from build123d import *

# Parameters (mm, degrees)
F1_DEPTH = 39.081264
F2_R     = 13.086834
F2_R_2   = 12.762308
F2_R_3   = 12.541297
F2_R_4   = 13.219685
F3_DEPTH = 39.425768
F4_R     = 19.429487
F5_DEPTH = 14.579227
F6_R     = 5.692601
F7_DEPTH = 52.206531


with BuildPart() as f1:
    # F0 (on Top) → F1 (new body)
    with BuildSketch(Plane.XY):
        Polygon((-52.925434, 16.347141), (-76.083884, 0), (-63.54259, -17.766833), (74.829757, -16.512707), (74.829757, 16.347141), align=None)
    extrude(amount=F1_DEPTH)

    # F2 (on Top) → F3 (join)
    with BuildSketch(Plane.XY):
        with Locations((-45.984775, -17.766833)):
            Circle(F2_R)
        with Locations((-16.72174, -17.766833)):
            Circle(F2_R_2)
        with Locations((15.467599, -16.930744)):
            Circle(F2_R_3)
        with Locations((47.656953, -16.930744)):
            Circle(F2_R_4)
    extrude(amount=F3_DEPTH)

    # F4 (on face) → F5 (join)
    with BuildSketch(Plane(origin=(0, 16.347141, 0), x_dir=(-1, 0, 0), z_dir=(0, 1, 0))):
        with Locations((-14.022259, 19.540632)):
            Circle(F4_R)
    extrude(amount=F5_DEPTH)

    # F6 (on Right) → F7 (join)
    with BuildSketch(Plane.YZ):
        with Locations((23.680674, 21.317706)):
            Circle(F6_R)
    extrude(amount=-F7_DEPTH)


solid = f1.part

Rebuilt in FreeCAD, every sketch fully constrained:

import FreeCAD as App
import Part
import Sketcher
from FreeCAD import Vector
Q = App.Units.Quantity

doc = App.newDocument("Part")
body = doc.addObject("PartDesign::Body", "Body")

# Sketch on XY plane
sketch1 = doc.addObject("Sketcher::SketchObject", "Sketch")
body.addObject(sketch1)
sketch1.AttachmentSupport = (doc.XY_Plane, [""])
sketch1.MapMode = "FlatFace"
sketch1.addGeometry([
    Part.LineSegment(Vector(-52.925434, 16.347141, 0), Vector(-76.083884, 0, 0)),  # 0
    Part.LineSegment(Vector(-76.083884, 0, 0), Vector(-63.54259, -17.766833, 0)),  # 1
    Part.LineSegment(Vector(-63.54259, -17.766833, 0), Vector(74.829757, -16.512707, 0)),  # 2
    Part.LineSegment(Vector(74.829757, -16.512707, 0), Vector(74.829757, 16.347141, 0)),  # 3
    Part.LineSegment(Vector(74.829757, 16.347141, 0), Vector(-52.925434, 16.347141, 0)),  # 4
], False)
sketch1.addConstraint([
    Sketcher.Constraint("Coincident", 0, 2, 1, 1),
    Sketcher.Constraint("Coincident", 1, 2, 2, 1),
    Sketcher.Constraint("Coincident", 2, 2, 3, 1),
    Sketcher.Constraint("Coincident", 3, 2, 4, 1),
    Sketcher.Constraint("Coincident", 4, 2, 0, 1),
    Sketcher.Constraint("Vertical", 3),
    Sketcher.Constraint("Horizontal", 4),
    Sketcher.Constraint("PointOnObject", 0, 2, -1),
    Sketcher.Constraint("Perpendicular", 0, 1),
    Sketcher.Constraint("DistanceX", 4, 2, 4, 1, Q("127.755191 mm")),
    Sketcher.Constraint("Distance", 0, Q("28.346831 mm")),
    Sketcher.Constraint("Distance", 2, Q("138.37803 mm")),
    Sketcher.Constraint("DistanceY", 3, 1, 3, 2, Q("32.859848 mm")),
    Sketcher.Constraint("DistanceX", 1, 2, -1, 1, Q("63.54259 mm")),
    Sketcher.Constraint("DistanceY", -1, 1, 3, 2, Q("16.347141 mm")),
])
pad1 = doc.addObject("PartDesign::Pad", "Pad")
body.addObject(pad1)
pad1.Profile = sketch1
pad1.Length = 39.081264

# Sketch on XY plane
sketch2 = doc.addObject("Sketcher::SketchObject", "Sketch001")
body.addObject(sketch2)
sketch2.AttachmentSupport = (doc.XY_Plane, [""])
sketch2.MapMode = "FlatFace"
sketch2.addGeometry([
    Part.Circle(Vector(-45.984775, -17.766833, 0), Vector(0, 0, 1), 13.086834),
    Part.Circle(Vector(-16.72174, -17.766833, 0), Vector(0, 0, 1), 12.762308),
    Part.Circle(Vector(15.467599, -16.930744, 0), Vector(0, 0, 1), 12.541297),
    Part.Circle(Vector(47.656953, -16.930744, 0), Vector(0, 0, 1), 13.219685),
], False)
sketch2.addConstraint([
    Sketcher.Constraint("Horizontal", 0, 3, 1, 3),
    Sketcher.Constraint("Horizontal", 2, 3, 3, 3),
    Sketcher.Constraint("Diameter", 3, Q("26.43937 mm")),
    Sketcher.Constraint("Diameter", 0, Q("26.173668 mm")),
    Sketcher.Constraint("Diameter", 1, Q("25.524616 mm")),
    Sketcher.Constraint("Diameter", 2, Q("25.082594 mm")),
    Sketcher.Constraint("DistanceX", -1, 1, 2, 3, Q("15.467599 mm")),
    Sketcher.Constraint("DistanceX", 1, 3, -1, 1, Q("16.72174 mm")),
    Sketcher.Constraint("DistanceY", 1, 3, 2, 3, Q("0.836089 mm")),
    Sketcher.Constraint("DistanceX", 0, 3, 3, 3, Q("93.641728 mm")),
    Sketcher.Constraint("DistanceX", 0, 3, -1, 1, Q("45.984775 mm")),
    Sketcher.Constraint("DistanceY", 0, 3, -1, 1, Q("17.766833 mm")),
])
pad2 = doc.addObject("PartDesign::Pad", "Pad001")
body.addObject(pad2)
pad2.Profile = sketch2
pad2.Length = 39.425768

# Sketch on XZ plane
sketch3 = doc.addObject("Sketcher::SketchObject", "Sketch002")
body.addObject(sketch3)
sketch3.AttachmentSupport = (doc.XZ_Plane, [""])
sketch3.MapMode = "FlatFace"
sketch3.AttachmentOffset = App.Placement(Vector(0, 0, -16.347141), App.Rotation())
sketch3.addGeometry(Part.Circle(Vector(14.022259, 19.540632, 0), Vector(0, 0, 1), 19.429487), False)
sketch3.addConstraint([
    Sketcher.Constraint("Diameter", 0, Q("38.858974 mm")),
    Sketcher.Constraint("DistanceX", -1, 1, 0, 3, Q("14.022259 mm")),
    Sketcher.Constraint("DistanceY", -1, 1, 0, 3, Q("19.540632 mm")),
])
pad3 = doc.addObject("PartDesign::Pad", "Pad002")
body.addObject(pad3)
pad3.Profile = sketch3
pad3.Length = 14.579227
pad3.Reversed = True

# Sketch on YZ plane
sketch4 = doc.addObject("Sketcher::SketchObject", "Sketch003")
body.addObject(sketch4)
sketch4.AttachmentSupport = (doc.YZ_Plane, [""])
sketch4.MapMode = "FlatFace"
sketch4.addGeometry(Part.Circle(Vector(23.680674, 21.317706, 0), Vector(0, 0, 1), 5.692601), False)
sketch4.addConstraint([
    Sketcher.Constraint("Diameter", 0, Q("11.385202 mm")),
    Sketcher.Constraint("DistanceX", -1, 1, 0, 3, Q("23.680674 mm")),
    Sketcher.Constraint("DistanceY", -1, 1, 0, 3, Q("21.317706 mm")),
])
pad4 = doc.addObject("PartDesign::Pad", "Pad003")
body.addObject(pad4)
pad4.Profile = sketch4
pad4.Length = 52.206531
pad4.Reversed = True

doc.recompute()
